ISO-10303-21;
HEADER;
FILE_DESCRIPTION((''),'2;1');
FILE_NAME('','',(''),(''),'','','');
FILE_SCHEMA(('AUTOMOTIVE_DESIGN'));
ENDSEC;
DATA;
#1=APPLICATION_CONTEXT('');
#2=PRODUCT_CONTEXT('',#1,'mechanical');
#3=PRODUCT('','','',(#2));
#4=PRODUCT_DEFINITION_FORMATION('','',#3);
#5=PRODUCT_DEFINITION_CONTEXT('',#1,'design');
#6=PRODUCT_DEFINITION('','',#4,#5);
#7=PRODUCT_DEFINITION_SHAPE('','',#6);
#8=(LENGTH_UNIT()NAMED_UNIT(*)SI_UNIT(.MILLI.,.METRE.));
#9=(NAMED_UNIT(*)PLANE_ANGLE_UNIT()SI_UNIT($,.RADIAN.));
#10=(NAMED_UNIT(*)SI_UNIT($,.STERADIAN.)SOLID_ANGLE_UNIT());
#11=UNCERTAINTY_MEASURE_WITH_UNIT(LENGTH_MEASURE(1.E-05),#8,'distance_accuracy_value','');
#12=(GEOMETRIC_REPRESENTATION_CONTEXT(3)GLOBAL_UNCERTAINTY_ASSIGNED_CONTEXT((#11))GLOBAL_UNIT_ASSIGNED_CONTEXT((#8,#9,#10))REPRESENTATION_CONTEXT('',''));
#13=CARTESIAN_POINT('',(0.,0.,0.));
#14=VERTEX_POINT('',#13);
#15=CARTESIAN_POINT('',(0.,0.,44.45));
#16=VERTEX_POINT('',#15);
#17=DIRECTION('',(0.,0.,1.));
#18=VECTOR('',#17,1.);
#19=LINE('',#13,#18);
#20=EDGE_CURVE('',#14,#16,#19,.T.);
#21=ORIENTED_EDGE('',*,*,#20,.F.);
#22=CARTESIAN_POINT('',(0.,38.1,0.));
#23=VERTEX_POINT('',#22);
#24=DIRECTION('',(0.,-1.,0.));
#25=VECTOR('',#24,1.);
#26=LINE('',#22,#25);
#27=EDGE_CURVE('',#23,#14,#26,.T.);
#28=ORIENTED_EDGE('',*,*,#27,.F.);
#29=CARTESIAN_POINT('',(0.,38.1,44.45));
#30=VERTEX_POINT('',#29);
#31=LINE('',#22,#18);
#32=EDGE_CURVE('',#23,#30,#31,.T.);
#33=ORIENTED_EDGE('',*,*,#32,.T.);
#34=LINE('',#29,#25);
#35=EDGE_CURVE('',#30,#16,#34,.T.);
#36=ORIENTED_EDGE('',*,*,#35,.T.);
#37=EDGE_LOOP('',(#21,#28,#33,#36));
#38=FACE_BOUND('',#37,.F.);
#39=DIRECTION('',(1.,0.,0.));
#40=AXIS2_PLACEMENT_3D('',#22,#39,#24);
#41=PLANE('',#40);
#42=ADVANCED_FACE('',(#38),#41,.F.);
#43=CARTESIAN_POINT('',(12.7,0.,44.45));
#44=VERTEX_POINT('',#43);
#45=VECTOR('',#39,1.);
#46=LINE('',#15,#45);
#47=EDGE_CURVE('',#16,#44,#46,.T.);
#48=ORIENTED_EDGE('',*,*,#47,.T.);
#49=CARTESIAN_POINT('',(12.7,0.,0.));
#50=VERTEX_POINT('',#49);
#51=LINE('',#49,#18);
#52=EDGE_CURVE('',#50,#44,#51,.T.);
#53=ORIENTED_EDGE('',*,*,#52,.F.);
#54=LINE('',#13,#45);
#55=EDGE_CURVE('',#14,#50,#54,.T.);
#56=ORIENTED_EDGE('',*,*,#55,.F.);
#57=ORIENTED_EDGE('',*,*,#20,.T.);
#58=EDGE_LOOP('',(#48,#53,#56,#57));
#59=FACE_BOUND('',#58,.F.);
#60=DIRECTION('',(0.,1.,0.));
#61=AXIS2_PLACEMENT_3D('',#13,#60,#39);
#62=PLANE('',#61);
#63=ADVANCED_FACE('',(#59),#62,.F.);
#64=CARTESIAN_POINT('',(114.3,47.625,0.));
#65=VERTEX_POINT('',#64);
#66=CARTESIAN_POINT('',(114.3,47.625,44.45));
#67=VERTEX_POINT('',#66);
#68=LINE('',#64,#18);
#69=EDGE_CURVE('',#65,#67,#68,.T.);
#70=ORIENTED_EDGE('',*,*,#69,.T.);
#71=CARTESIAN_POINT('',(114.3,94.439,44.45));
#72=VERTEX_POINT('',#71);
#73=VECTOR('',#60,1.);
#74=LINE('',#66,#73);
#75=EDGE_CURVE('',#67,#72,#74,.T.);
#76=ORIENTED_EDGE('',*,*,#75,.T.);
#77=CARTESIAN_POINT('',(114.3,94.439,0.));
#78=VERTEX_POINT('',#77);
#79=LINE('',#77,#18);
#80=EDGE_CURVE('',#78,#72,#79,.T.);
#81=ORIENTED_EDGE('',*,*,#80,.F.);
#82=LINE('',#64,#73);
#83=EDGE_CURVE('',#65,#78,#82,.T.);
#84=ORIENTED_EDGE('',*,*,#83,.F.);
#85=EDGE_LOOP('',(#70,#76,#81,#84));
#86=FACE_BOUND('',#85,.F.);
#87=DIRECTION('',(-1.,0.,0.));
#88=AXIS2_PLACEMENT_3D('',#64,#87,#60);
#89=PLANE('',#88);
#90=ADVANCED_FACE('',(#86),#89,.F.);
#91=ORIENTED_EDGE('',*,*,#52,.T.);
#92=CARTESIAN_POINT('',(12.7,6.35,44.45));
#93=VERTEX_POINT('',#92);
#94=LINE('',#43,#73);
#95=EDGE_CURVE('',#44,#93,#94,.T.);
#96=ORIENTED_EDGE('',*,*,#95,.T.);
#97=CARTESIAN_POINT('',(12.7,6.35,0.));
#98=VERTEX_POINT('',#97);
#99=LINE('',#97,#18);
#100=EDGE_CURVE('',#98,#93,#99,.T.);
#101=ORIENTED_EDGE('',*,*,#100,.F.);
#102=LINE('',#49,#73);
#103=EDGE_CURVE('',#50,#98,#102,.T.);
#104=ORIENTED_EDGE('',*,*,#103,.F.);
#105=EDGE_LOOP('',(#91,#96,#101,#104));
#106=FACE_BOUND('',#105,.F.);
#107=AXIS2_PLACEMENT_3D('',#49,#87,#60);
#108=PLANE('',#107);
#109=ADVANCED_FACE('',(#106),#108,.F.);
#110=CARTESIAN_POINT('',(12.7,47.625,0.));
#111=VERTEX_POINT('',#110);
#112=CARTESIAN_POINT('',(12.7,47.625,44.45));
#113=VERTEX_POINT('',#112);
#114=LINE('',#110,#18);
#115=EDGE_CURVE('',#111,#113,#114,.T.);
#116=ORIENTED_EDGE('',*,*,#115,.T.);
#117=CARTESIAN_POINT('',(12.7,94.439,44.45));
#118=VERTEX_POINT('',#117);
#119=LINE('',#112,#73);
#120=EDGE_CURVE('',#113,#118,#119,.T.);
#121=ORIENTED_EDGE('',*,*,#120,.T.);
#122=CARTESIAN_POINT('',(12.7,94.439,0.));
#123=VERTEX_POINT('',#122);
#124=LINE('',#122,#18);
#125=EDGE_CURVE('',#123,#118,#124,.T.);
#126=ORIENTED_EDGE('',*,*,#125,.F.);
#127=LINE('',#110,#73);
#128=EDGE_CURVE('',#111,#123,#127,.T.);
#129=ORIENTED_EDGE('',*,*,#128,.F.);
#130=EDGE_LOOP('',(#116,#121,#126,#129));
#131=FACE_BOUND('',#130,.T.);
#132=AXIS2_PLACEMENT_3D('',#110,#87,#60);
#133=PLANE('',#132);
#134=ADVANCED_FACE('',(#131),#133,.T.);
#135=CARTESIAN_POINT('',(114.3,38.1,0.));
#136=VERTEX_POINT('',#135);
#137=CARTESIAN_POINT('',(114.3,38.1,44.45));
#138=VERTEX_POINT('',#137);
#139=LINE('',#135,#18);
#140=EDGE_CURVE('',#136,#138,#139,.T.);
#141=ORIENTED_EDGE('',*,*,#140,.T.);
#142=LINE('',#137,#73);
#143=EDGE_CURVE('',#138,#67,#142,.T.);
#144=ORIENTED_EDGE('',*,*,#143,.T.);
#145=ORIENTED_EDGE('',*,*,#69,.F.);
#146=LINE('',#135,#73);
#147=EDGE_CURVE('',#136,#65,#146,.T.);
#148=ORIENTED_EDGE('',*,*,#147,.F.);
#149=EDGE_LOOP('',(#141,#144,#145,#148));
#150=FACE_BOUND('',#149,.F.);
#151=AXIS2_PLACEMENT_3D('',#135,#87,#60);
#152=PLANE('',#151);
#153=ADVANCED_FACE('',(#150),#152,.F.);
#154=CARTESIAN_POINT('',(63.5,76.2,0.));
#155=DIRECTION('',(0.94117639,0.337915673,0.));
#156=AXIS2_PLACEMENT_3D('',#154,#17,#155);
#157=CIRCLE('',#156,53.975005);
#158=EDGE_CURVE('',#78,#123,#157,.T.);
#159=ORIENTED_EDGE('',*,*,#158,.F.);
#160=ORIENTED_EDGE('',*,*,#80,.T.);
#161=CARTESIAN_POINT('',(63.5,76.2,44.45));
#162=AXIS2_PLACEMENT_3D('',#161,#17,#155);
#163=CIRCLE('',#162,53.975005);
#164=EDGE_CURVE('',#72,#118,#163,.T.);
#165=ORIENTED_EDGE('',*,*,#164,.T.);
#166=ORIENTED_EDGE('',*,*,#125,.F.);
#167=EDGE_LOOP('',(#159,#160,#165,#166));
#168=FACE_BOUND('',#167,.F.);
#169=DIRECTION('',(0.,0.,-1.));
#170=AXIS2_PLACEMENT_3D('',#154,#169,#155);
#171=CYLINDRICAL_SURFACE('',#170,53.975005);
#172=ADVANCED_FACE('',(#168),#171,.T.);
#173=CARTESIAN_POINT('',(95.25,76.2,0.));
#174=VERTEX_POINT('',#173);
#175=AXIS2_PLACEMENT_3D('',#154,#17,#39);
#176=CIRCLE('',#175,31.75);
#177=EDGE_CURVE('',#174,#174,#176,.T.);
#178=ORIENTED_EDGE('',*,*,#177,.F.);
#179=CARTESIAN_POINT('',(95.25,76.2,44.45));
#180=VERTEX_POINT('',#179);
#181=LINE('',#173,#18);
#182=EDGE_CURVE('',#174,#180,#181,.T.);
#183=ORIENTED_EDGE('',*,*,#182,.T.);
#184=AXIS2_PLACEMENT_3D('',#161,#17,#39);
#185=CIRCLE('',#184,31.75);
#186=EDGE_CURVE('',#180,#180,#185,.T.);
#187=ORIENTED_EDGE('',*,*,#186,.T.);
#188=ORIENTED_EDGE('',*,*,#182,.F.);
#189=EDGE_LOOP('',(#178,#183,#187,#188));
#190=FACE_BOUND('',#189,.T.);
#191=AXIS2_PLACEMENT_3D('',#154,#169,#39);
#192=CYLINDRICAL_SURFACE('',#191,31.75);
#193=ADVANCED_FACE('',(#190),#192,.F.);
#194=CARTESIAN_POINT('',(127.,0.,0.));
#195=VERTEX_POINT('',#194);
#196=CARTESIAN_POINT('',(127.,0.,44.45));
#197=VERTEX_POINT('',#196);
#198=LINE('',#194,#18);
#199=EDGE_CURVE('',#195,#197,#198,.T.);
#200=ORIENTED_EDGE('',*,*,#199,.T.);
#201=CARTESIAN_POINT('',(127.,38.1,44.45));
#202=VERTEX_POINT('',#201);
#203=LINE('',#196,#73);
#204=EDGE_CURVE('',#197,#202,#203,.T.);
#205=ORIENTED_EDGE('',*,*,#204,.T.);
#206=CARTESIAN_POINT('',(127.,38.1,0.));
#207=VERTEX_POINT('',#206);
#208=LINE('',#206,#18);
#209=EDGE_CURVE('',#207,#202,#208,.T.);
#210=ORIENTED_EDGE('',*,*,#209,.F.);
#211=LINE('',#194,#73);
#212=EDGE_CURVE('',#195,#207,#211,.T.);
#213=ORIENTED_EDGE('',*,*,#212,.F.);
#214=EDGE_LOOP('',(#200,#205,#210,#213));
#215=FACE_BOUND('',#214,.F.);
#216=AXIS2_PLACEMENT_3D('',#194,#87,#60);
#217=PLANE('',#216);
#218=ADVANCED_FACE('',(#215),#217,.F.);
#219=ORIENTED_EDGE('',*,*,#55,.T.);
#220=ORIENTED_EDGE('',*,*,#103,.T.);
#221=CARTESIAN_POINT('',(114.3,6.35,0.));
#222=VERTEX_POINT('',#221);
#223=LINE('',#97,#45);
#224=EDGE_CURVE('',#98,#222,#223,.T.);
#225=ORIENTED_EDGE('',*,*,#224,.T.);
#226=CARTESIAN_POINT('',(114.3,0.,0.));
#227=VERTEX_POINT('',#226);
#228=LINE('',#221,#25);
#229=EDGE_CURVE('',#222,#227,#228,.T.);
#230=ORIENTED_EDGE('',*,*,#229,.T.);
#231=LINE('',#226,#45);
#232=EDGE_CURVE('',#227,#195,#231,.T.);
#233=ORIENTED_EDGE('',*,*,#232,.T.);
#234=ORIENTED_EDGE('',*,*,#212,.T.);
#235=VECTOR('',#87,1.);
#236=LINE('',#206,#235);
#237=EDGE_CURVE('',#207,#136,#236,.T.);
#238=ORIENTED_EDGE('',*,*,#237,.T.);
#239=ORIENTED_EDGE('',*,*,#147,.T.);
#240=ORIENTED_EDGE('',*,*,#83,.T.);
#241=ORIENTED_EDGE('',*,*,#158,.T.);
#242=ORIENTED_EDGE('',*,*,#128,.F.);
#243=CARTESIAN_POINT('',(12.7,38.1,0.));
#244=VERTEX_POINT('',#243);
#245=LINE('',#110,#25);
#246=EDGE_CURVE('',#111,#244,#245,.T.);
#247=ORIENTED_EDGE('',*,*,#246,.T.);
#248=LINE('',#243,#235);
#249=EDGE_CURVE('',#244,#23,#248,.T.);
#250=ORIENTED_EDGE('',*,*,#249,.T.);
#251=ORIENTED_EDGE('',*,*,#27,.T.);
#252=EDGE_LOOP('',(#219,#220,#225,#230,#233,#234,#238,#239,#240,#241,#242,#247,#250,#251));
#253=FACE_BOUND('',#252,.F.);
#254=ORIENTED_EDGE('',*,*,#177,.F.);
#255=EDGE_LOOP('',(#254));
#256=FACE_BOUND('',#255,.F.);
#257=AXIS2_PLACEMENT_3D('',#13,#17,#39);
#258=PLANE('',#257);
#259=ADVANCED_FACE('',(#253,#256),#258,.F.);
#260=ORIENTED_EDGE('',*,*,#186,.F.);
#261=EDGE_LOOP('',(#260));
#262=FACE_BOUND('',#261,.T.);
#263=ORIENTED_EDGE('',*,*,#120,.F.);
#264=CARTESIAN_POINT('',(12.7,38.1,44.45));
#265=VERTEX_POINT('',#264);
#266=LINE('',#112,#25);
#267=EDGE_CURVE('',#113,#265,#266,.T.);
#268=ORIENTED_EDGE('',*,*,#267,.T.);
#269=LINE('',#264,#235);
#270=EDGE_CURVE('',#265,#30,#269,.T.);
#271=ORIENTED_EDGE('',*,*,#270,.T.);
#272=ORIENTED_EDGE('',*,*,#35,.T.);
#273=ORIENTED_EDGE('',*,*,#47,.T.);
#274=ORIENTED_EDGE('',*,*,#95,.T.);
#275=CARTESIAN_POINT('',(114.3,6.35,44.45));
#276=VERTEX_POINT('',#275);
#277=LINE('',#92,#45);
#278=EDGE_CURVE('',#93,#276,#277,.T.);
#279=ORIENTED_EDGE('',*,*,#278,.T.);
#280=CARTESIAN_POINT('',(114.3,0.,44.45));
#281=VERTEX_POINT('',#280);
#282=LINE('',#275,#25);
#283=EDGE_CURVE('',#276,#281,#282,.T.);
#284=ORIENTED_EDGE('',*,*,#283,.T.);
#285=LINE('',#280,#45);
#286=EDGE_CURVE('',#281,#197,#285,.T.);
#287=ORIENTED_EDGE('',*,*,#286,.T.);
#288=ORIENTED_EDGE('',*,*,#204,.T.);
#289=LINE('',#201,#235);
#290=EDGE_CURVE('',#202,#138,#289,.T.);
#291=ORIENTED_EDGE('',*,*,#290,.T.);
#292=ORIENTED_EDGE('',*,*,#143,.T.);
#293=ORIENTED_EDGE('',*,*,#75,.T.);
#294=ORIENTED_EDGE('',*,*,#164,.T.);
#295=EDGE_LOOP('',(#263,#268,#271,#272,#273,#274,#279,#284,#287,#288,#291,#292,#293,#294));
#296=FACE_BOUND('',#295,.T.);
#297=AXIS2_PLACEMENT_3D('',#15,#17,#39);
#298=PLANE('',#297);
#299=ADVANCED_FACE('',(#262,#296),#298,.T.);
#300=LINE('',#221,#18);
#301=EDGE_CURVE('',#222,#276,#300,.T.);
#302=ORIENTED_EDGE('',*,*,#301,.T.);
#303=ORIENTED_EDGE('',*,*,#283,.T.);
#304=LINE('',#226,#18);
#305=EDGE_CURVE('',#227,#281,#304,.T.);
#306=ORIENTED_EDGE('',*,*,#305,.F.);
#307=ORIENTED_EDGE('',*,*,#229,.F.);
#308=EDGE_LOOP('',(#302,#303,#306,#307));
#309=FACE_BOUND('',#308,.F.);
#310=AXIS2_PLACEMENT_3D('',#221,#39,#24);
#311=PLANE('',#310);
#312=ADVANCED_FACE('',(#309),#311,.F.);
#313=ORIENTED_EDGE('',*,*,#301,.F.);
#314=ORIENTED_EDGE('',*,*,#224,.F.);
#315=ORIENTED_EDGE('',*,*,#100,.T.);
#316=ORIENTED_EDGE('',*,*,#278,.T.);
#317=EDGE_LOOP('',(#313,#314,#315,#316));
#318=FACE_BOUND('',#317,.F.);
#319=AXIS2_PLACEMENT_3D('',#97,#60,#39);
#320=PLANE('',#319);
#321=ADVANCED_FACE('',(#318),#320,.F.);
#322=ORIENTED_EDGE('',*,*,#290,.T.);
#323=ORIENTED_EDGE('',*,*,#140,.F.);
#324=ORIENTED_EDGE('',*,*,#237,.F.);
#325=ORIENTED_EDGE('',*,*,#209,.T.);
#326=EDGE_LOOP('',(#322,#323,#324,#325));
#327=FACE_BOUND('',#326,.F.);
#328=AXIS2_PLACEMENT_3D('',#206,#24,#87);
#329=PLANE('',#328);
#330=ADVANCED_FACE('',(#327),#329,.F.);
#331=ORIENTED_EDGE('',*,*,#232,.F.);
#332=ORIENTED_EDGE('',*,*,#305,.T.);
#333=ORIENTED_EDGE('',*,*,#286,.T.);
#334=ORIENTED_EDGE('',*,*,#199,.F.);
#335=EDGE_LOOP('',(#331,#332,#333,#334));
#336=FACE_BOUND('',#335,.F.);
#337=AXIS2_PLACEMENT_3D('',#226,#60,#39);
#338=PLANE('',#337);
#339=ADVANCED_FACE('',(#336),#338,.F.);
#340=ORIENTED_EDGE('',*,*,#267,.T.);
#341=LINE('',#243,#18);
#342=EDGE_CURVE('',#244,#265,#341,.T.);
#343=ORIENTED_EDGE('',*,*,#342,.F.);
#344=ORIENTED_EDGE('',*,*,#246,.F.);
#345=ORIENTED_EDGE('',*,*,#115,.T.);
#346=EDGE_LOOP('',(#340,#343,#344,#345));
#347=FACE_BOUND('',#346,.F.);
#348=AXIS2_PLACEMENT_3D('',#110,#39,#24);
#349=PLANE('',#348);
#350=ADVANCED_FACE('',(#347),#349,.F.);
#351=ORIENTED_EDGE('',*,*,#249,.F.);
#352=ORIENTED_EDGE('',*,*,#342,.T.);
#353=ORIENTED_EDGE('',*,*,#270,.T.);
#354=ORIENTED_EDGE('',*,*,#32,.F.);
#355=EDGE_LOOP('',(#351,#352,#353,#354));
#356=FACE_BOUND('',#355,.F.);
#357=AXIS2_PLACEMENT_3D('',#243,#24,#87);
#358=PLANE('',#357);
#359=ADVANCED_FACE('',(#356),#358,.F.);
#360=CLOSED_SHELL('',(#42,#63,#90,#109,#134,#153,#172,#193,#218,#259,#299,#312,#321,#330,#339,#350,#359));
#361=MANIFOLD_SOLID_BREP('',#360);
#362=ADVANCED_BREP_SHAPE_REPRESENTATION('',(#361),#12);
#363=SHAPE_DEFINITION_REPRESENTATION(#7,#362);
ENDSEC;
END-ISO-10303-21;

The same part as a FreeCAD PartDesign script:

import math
import FreeCAD as App
import Part
import Sketcher
Q = App.Units.Quantity

doc = App.newDocument("Part")
body = doc.addObject("PartDesign::Body", "Body")

# Sketch on XY plane
sketch1 = body.newObject("Sketcher::SketchObject", "Sketch")
sketch1.AttachmentSupport = (doc.getObject("XY_Plane"), [""])
sketch1.MapMode = "FlatFace"
sketch1.addGeometry(Part.LineSegment(App.Vector(0, 38, 0), App.Vector(0, 0, 0)), False)
sketch1.addGeometry(Part.LineSegment(App.Vector(0, 0, 0), App.Vector(13, 0, 0)), False)
sketch1.addGeometry(Part.LineSegment(App.Vector(13, 0, 0), App.Vector(13, 6, 0)), False)
sketch1.addGeometry(Part.LineSegment(App.Vector(13, 6, 0), App.Vector(114, 6, 0)), False)
sketch1.addGeometry(Part.LineSegment(App.Vector(114, 6, 0), App.Vector(114, 0, 0)), False)
sketch1.addGeometry(Part.LineSegment(App.Vector(114, 0, 0), App.Vector(127, 0, 0)), False)
sketch1.addGeometry(Part.LineSegment(App.Vector(127, 0, 0), App.Vector(127, 38, 0)), False)
sketch1.addGeometry(Part.LineSegment(App.Vector(127, 38, 0), App.Vector(114, 38, 0)), False)
sketch1.addGeometry(Part.LineSegment(App.Vector(114, 38, 0), App.Vector(114, 94, 0)), False)
sketch1.addGeometry(Part.ArcOfCircle(Part.Circle(App.Vector(64, 76, 0), App.Vector(0, 0, 1), 54), math.radians(20), math.radians(160)), False)
sketch1.addGeometry(Part.LineSegment(App.Vector(13, 94, 0), App.Vector(13, 38, 0)), False)
sketch1.addGeometry(Part.LineSegment(App.Vector(13, 38, 0), App.Vector(0, 38, 0)), False)
sketch1.addGeometry(Part.Circle(App.Vector(64, 76, 0), App.Vector(0, 0, 1), 32), False)
sketch1.addConstraint(Sketcher.Constraint("Coincident", 0, 2, 1, 1))
sketch1.addConstraint(Sketcher.Constraint("Coincident", 1, 2, 2, 1))
sketch1.addConstraint(Sketcher.Constraint("Coincident", 2, 2, 3, 1))
sketch1.addConstraint(Sketcher.Constraint("Coincident", 3, 2, 4, 1))
sketch1.addConstraint(Sketcher.Constraint("Coincident", 4, 2, 5, 1))
sketch1.addConstraint(Sketcher.Constraint("Coincident", 5, 2, 6, 1))
sketch1.addConstraint(Sketcher.Constraint("Coincident", 6, 2, 7, 1))
sketch1.addConstraint(Sketcher.Constraint("Coincident", 7, 2, 8, 1))
sketch1.addConstraint(Sketcher.Constraint("Coincident", 8, 2, 9, 1))
sketch1.addConstraint(Sketcher.Constraint("Coincident", 9, 2, 10, 1))
sketch1.addConstraint(Sketcher.Constraint("Coincident", 10, 2, 11, 1))
sketch1.addConstraint(Sketcher.Constraint("Coincident", 11, 2, 0, 1))
sketch1.addConstraint(Sketcher.Constraint("Vertical", 0))
sketch1.addConstraint(Sketcher.Constraint("Horizontal", 1))
sketch1.addConstraint(Sketcher.Constraint("Vertical", 2))
sketch1.addConstraint(Sketcher.Constraint("Horizontal", 3))
sketch1.addConstraint(Sketcher.Constraint("Vertical", 4))
sketch1.addConstraint(Sketcher.Constraint("Horizontal", 5))
sketch1.addConstraint(Sketcher.Constraint("Vertical", 6))
sketch1.addConstraint(Sketcher.Constraint("Horizontal", 7))
sketch1.addConstraint(Sketcher.Constraint("Vertical", 8))
sketch1.addConstraint(Sketcher.Constraint("Vertical", 10))
sketch1.addConstraint(Sketcher.Constraint("Horizontal", 11))
sketch1.addConstraint(Sketcher.Constraint("Coincident", 0, 2, -1, 1))
sketch1.addConstraint(Sketcher.Constraint("Coincident", 12, 3, 9, 3))
sketch1.addConstraint(Sketcher.Constraint("PointOnObject", 4, 2, -1))
sketch1.addConstraint(Sketcher.Constraint("Horizontal", 8, 2, 9, 2))
sketch1.addConstraint(Sketcher.Constraint("Horizontal", 7, 2, 10, 2))
sketch1.addConstraint(Sketcher.Constraint("Vertical", 4, 2, 7, 2))
sketch1.addConstraint(Sketcher.Constraint("Vertical", 2, 2, 9, 2))
sketch1.addConstraint(Sketcher.Constraint("Equal", 1, 5))
sketch1.addConstraint(Sketcher.Constraint("Diameter", 12, Q("2.5 in")))
sketch1.addConstraint(Sketcher.Constraint("DistanceX", 3, 1, 3, 2, Q("4 in")))
sketch1.addConstraint(Sketcher.Constraint("DistanceX", 1, 1, 1, 2, Q("0.5 in")))
sketch1.addConstraint(Sketcher.Constraint("DistanceY", 0, 2, 0, 1, Q("1.5 in")))
sketch1.addConstraint(Sketcher.Constraint("DistanceY", -1, 1, 9, 3, Q("3 in")))
sketch1.addConstraint(Sketcher.Constraint("DistanceY", 2, 1, 2, 2, Q("0.25 in")))
sketch1.addConstraint(Sketcher.Constraint("Radius", 9, Q("2.125 in")))
pad1 = body.newObject("PartDesign::Pad", "Pad")
pad1.Profile = sketch1
pad1.Length = Q("1.75 in")

doc.recompute()
